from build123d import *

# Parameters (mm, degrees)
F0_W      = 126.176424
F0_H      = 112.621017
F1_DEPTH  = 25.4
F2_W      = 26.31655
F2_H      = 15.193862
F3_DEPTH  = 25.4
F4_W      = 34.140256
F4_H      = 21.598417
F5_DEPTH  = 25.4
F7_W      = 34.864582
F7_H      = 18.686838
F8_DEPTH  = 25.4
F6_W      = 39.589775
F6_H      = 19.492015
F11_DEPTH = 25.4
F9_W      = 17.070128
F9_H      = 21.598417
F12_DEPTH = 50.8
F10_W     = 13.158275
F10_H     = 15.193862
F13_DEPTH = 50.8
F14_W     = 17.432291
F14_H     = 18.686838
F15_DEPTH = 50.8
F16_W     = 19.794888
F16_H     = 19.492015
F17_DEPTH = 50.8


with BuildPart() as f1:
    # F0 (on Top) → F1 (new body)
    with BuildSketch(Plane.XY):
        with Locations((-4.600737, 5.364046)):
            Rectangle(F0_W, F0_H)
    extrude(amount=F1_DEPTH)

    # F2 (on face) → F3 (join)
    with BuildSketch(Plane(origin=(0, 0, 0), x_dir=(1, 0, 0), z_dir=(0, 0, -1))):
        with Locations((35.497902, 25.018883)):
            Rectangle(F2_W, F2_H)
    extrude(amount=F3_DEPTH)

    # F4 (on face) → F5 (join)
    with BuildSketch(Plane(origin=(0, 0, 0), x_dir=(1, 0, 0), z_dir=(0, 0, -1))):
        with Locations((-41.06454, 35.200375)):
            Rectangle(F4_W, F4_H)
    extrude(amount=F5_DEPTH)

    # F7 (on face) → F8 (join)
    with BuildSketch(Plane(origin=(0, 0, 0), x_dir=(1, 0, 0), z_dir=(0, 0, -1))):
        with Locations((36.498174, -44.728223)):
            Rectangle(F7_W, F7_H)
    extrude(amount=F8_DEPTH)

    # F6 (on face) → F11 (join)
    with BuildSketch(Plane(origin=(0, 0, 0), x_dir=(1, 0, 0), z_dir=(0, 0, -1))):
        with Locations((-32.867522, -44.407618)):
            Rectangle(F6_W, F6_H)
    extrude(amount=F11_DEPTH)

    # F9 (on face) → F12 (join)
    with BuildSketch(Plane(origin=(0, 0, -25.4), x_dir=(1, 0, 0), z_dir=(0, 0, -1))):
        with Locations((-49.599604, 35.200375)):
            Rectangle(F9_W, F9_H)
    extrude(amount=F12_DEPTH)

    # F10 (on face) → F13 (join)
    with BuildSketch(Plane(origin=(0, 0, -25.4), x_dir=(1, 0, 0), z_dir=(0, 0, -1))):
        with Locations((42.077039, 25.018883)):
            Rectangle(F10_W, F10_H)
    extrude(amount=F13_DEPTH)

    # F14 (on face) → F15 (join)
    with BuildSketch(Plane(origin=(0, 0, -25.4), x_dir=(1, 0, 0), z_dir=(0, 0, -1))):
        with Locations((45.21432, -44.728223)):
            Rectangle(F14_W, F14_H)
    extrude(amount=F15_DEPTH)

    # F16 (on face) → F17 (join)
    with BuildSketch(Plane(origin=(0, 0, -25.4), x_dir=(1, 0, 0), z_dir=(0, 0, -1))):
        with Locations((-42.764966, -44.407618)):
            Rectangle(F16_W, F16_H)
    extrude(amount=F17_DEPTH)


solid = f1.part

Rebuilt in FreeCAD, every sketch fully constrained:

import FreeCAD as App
import Part
import Sketcher
from FreeCAD import Vector
Q = App.Units.Quantity

doc = App.newDocument("Part")
body = doc.addObject("PartDesign::Body", "Body")

sketch1 = body.newObject("Sketcher::SketchObject", "Sketch")
sketch1.AttachmentSupport = (doc.getObject("XY_Plane"), [""])
sketch1.MapMode = "FlatFace"
sketch1.addGeometry(Part.LineSegment(Vector(-68, 62, 0), Vector(-68, -51, 0)), False)
sketch1.addGeometry(Part.LineSegment(Vector(-68, -51, 0), Vector(58, -51, 0)), False)
sketch1.addGeometry(Part.LineSegment(Vector(58, -51, 0), Vector(58, 62, 0)), False)
sketch1.addGeometry(Part.LineSegment(Vector(58, 62, 0), Vector(-68, 62, 0)), False)
sketch1.addConstraint(Sketcher.Constraint("Coincident", 0, 2, 1, 1))
sketch1.addConstraint(Sketcher.Constraint("Coincident", 1, 2, 2, 1))
sketch1.addConstraint(Sketcher.Constraint("Coincident", 2, 2, 3, 1))
sketch1.addConstraint(Sketcher.Constraint("Coincident", 3, 2, 0, 1))
sketch1.addConstraint(Sketcher.Constraint("Vertical", 0))
sketch1.addConstraint(Sketcher.Constraint("Horizontal", 1))
sketch1.addConstraint(Sketcher.Constraint("Vertical", 2))
sketch1.addConstraint(Sketcher.Constraint("Horizontal", 3))
sketch1.addConstraint(Sketcher.Constraint("DistanceX", 1, 1, 1, 2, Q("126.176424 mm")))
sketch1.addConstraint(Sketcher.Constraint("DistanceY", 0, 2, 0, 1, Q("112.621017 mm")))
sketch1.addConstraint(Sketcher.Constraint("DistanceX", 0, 2, -1, 1, Q("67.688949 mm")))
sketch1.addConstraint(Sketcher.Constraint("DistanceY", 0, 2, -1, 1, Q("50.946463 mm")))
pad1 = body.newObject("PartDesign::Pad", "Pad")
pad1.Profile = sketch1
pad1.Length = Q("1 in")

sketch2 = body.newObject("Sketcher::SketchObject", "Sketch001")
sketch2.AttachmentSupport = (doc.getObject("XY_Plane"), [""])
sketch2.MapMode = "FlatFace"
sketch2.addGeometry(Part.LineSegment(Vector(22, -33, 0), Vector(22, -17, 0)), False)
sketch2.addGeometry(Part.LineSegment(Vector(22, -17, 0), Vector(49, -17, 0)), False)
sketch2.addGeometry(Part.LineSegment(Vector(49, -17, 0), Vector(49, -33, 0)), False)
sketch2.addGeometry(Part.LineSegment(Vector(49, -33, 0), Vector(22, -33, 0)), False)
sketch2.addConstraint(Sketcher.Constraint("Coincident", 0, 2, 1, 1))
sketch2.addConstraint(Sketcher.Constraint("Coincident", 1, 2, 2, 1))
sketch2.addConstraint(Sketcher.Constraint("Coincident", 2, 2, 3, 1))
sketch2.addConstraint(Sketcher.Constraint("Coincident", 3, 2, 0, 1))
sketch2.addConstraint(Sketcher.Constraint("Vertical", 0))
sketch2.addConstraint(Sketcher.Constraint("Horizontal", 1))
sketch2.addConstraint(Sketcher.Constraint("Vertical", 2))
sketch2.addConstraint(Sketcher.Constraint("Horizontal", 3))
sketch2.addConstraint(Sketcher.Constraint("DistanceX", 1, 1, 1, 2, Q("26.31655 mm")))
sketch2.addConstraint(Sketcher.Constraint("DistanceY", 0, 1, 0, 2, Q("15.193862 mm")))
sketch2.addConstraint(Sketcher.Constraint("DistanceX", -1, 1, 0, 2, Q("22.339627 mm")))
sketch2.addConstraint(Sketcher.Constraint("DistanceY", 0, 2, -1, 1, Q("17.421952 mm")))
pad2 = body.newObject("PartDesign::Pad", "Pad001")
pad2.Profile = sketch2
pad2.Length = Q("1 in")
pad2.Reversed = True

sketch3 = body.newObject("Sketcher::SketchObject", "Sketch002")
sketch3.AttachmentSupport = (doc.getObject("XY_Plane"), [""])
sketch3.MapMode = "FlatFace"
sketch3.addGeometry(Part.LineSegment(Vector(-58, -46, 0), Vector(-58, -24, 0)), False)
sketch3.addGeometry(Part.LineSegment(Vector(-58, -24, 0), Vector(-24, -24, 0)), False)
sketch3.addGeometry(Part.LineSegment(Vector(-24, -24, 0), Vector(-24, -46, 0)), False)
sketch3.addGeometry(Part.LineSegment(Vector(-24, -46, 0), Vector(-58, -46, 0)), False)
sketch3.addConstraint(Sketcher.Constraint("Coincident", 0, 2, 1, 1))
sketch3.addConstraint(Sketcher.Constraint("Coincident", 1, 2, 2, 1))
sketch3.addConstraint(Sketcher.Constraint("Coincident", 2, 2, 3, 1))
sketch3.addConstraint(Sketcher.Constraint("Coincident", 3, 2, 0, 1))
sketch3.addConstraint(Sketcher.Constraint("Vertical", 0))
sketch3.addConstraint(Sketcher.Constraint("Horizontal", 1))
sketch3.addConstraint(Sketcher.Constraint("Vertical", 2))
sketch3.addConstraint(Sketcher.Constraint("Horizontal", 3))
sketch3.addConstraint(Sketcher.Constraint("DistanceX", 1, 1, 1, 2, Q("34.140256 mm")))
sketch3.addConstraint(Sketcher.Constraint("DistanceY", 0, 1, 0, 2, Q("21.598417 mm")))
sketch3.addConstraint(Sketcher.Constraint("DistanceX", 0, 2, -1, 1, Q("58.134668 mm")))
sketch3.addConstraint(Sketcher.Constraint("DistanceY", 0, 2, -1, 1, Q("24.401166 mm")))
pad3 = body.newObject("PartDesign::Pad", "Pad002")
pad3.Profile = sketch3
pad3.Length = Q("1 in")
pad3.Reversed = True

sketch4 = body.newObject("Sketcher::SketchObject", "Sketch003")
sketch4.AttachmentSupport = (doc.getObject("XY_Plane"), [""])
sketch4.MapMode = "FlatFace"
sketch4.addGeometry(Part.LineSegment(Vector(19, 35, 0), Vector(19, 54, 0)), False)
sketch4.addGeometry(Part.LineSegment(Vector(19, 54, 0), Vector(54, 54, 0)), False)
sketch4.addGeometry(Part.LineSegment(Vector(54, 54, 0), Vector(54, 35, 0)), False)
sketch4.addGeometry(Part.LineSegment(Vector(54, 35, 0), Vector(19, 35, 0)), False)
sketch4.addConstraint(Sketcher.Constraint("Coincident", 0, 2, 1, 1))
sketch4.addConstraint(Sketcher.Constraint("Coincident", 1, 2, 2, 1))
sketch4.addConstraint(Sketcher.Constraint("Coincident", 2, 2, 3, 1))
sketch4.addConstraint(Sketcher.Constraint("Coincident", 3, 2, 0, 1))
sketch4.addConstraint(Sketcher.Constraint("Vertical", 0))
sketch4.addConstraint(Sketcher.Constraint("Horizontal", 1))
sketch4.addConstraint(Sketcher.Constraint("Vertical", 2))
sketch4.addConstraint(Sketcher.Constraint("Horizontal", 3))
sketch4.addConstraint(Sketcher.Constraint("DistanceX", 1, 1, 1, 2, Q("34.864582 mm")))
sketch4.addConstraint(Sketcher.Constraint("DistanceY", 0, 1, 0, 2, Q("18.686838 mm")))
sketch4.addConstraint(Sketcher.Constraint("DistanceY", -1, 1, 0, 2, Q("54.071642 mm")))
sketch4.addConstraint(Sketcher.Constraint("DistanceX", -1, 1, 0, 2, Q("19.065883 mm")))
pad4 = body.newObject("PartDesign::Pad", "Pad003")
pad4.Profile = sketch4
pad4.Length = Q("1 in")
pad4.Reversed = True

sketch5 = body.newObject("Sketcher::SketchObject", "Sketch004")
sketch5.AttachmentSupport = (doc.getObject("XY_Plane"), [""])
sketch5.MapMode = "FlatFace"
sketch5.addGeometry(Part.LineSegment(Vector(-53, 35, 0), Vector(-53, 54, 0)), False)
sketch5.addGeometry(Part.LineSegment(Vector(-53, 54, 0), Vector(-13, 54, 0)), False)
sketch5.addGeometry(Part.LineSegment(Vector(-13, 54, 0), Vector(-13, 35, 0)), False)
sketch5.addGeometry(Part.LineSegment(Vector(-13, 35, 0), Vector(-53, 35, 0)), False)
sketch5.addConstraint(Sketcher.Constraint("Coincident", 0, 2, 1, 1))
sketch5.addConstraint(Sketcher.Constraint("Coincident", 1, 2, 2, 1))
sketch5.addConstraint(Sketcher.Constraint("Coincident", 2, 2, 3, 1))
sketch5.addConstraint(Sketcher.Constraint("Coincident", 3, 2, 0, 1))
sketch5.addConstraint(Sketcher.Constraint("Vertical", 0))
sketch5.addConstraint(Sketcher.Constraint("Horizontal", 1))
sketch5.addConstraint(Sketcher.Constraint("Vertical", 2))
sketch5.addConstraint(Sketcher.Constraint("Horizontal", 3))
sketch5.addConstraint(Sketcher.Constraint("DistanceX", 1, 1, 1, 2, Q("39.589775 mm")))
sketch5.addConstraint(Sketcher.Constraint("DistanceY", 0, 1, 0, 2, Q("19.492015 mm")))
sketch5.addConstraint(Sketcher.Constraint("DistanceX", 0, 2, -1, 1, Q("52.66241 mm")))
sketch5.addConstraint(Sketcher.Constraint("DistanceY", -1, 1, 2, 2, Q("34.661611 mm")))
pad5 = body.newObject("PartDesign::Pad", "Pad004")
pad5.Profile = sketch5
pad5.Length = Q("1 in")
pad5.Reversed = True

sketch6 = body.newObject("Sketcher::SketchObject", "Sketch005")
sketch6.AttachmentSupport = (doc.getObject("XY_Plane"), [""])
sketch6.MapMode = "FlatFace"
sketch6.AttachmentOffset = App.Placement(Vector(0, 0, -1 * 25.4), App.Rotation())
sketch6.addGeometry(Part.LineSegment(Vector(-58, -46, 0), Vector(-58, -24, 0)), False)
sketch6.addGeometry(Part.LineSegment(Vector(-58, -24, 0), Vector(-41, -24, 0)), False)
sketch6.addGeometry(Part.LineSegment(Vector(-41, -24, 0), Vector(-41, -46, 0)), False)
sketch6.addGeometry(Part.LineSegment(Vector(-41, -46, 0), Vector(-58, -46, 0)), False)
sketch6.addConstraint(Sketcher.Constraint("Coincident", 0, 2, 1, 1))
sketch6.addConstraint(Sketcher.Constraint("Coincident", 1, 2, 2, 1))
sketch6.addConstraint(Sketcher.Constraint("Coincident", 2, 2, 3, 1))
sketch6.addConstraint(Sketcher.Constraint("Coincident", 3, 2, 0, 1))
sketch6.addConstraint(Sketcher.Constraint("Vertical", 0))
sketch6.addConstraint(Sketcher.Constraint("Horizontal", 1))
sketch6.addConstraint(Sketcher.Constraint("Vertical", 2))
sketch6.addConstraint(Sketcher.Constraint("Horizontal", 3))
sketch6.addConstraint(Sketcher.Constraint("DistanceX", 1, 1, 1, 2, Q("17.070128 mm")))
sketch6.addConstraint(Sketcher.Constraint("DistanceY", 0, 1, 0, 2, Q("21.598417 mm")))
sketch6.addConstraint(Sketcher.Constraint("DistanceX", 1, 2, -1, 1, Q("41.06454 mm")))
sketch6.addConstraint(Sketcher.Constraint("DistanceY", 0, 2, -1, 1, Q("24.401166 mm")))
pad6 = body.newObject("PartDesign::Pad", "Pad005")
pad6.Profile = sketch6
pad6.Length = Q("2 in")
pad6.Reversed = True

sketch7 = body.newObject("Sketcher::SketchObject", "Sketch006")
sketch7.AttachmentSupport = (doc.getObject("XY_Plane"), [""])
sketch7.MapMode = "FlatFace"
sketch7.AttachmentOffset = App.Placement(Vector(0, 0, -1 * 25.4), App.Rotation())
sketch7.addGeometry(Part.LineSegment(Vector(35, -33, 0), Vector(35, -17, 0)), False)
sketch7.addGeometry(Part.LineSegment(Vector(35, -17, 0), Vector(49, -17, 0)), False)
sketch7.addGeometry(Part.LineSegment(Vector(49, -17, 0), Vector(49, -33, 0)), False)
sketch7.addGeometry(Part.LineSegment(Vector(49, -33, 0), Vector(35, -33, 0)), False)
sketch7.addConstraint(Sketcher.Constraint("Coincident", 0, 2, 1, 1))
sketch7.addConstraint(Sketcher.Constraint("Coincident", 1, 2, 2, 1))
sketch7.addConstraint(Sketcher.Constraint("Coincident", 2, 2, 3, 1))
sketch7.addConstraint(Sketcher.Constraint("Coincident", 3, 2, 0, 1))
sketch7.addConstraint(Sketcher.Constraint("Vertical", 0))
sketch7.addConstraint(Sketcher.Constraint("Horizontal", 1))
sketch7.addConstraint(Sketcher.Constraint("Vertical", 2))
sketch7.addConstraint(Sketcher.Constraint("Horizontal", 3))
sketch7.addConstraint(Sketcher.Constraint("DistanceY", 0, 1, 0, 2, Q("15.193862 mm")))
sketch7.addConstraint(Sketcher.Constraint("DistanceX", -1, 1, 0, 2, Q("35.497901 mm")))
sketch7.addConstraint(Sketcher.Constraint("DistanceX", 1, 1, 1, 2, Q("13.158275 mm")))
sketch7.addConstraint(Sketcher.Constraint("DistanceY", 0, 2, -1, 1, Q("17.421952 mm")))
pad7 = body.newObject("PartDesign::Pad", "Pad006")
pad7.Profile = sketch7
pad7.Length = Q("2 in")
pad7.Reversed = True

sketch8 = body.newObject("Sketcher::SketchObject", "Sketch007")
sketch8.AttachmentSupport = (doc.getObject("XY_Plane"), [""])
sketch8.MapMode = "FlatFace"
sketch8.AttachmentOffset = App.Placement(Vector(0, 0, -1 * 25.4), App.Rotation())
sketch8.addGeometry(Part.LineSegment(Vector(36, 35, 0), Vector(36, 54, 0)), False)
sketch8.addGeometry(Part.LineSegment(Vector(36, 54, 0), Vector(54, 54, 0)), False)
sketch8.addGeometry(Part.LineSegment(Vector(54, 54, 0), Vector(54, 35, 0)), False)
sketch8.addGeometry(Part.LineSegment(Vector(54, 35, 0), Vector(36, 35, 0)), False)
sketch8.addConstraint(Sketcher.Constraint("Coincident", 0, 2, 1, 1))
sketch8.addConstraint(Sketcher.Constraint("Coincident", 1, 2, 2, 1))
sketch8.addConstraint(Sketcher.Constraint("Coincident", 2, 2, 3, 1))
sketch8.addConstraint(Sketcher.Constraint("Coincident", 3, 2, 0, 1))
sketch8.addConstraint(Sketcher.Constraint("Vertical", 0))
sketch8.addConstraint(Sketcher.Constraint("Horizontal", 1))
sketch8.addConstraint(Sketcher.Constraint("Vertical", 2))
sketch8.addConstraint(Sketcher.Constraint("Horizontal", 3))
sketch8.addConstraint(Sketcher.Constraint("DistanceX", 1, 1, 1, 2, Q("17.432291 mm")))
sketch8.addConstraint(Sketcher.Constraint("DistanceY", 0, 1, 0, 2, Q("18.686838 mm")))
sketch8.addConstraint(Sketcher.Constraint("DistanceY", -1, 1, 0, 2, Q("54.071642 mm")))
sketch8.addConstraint(Sketcher.Constraint("DistanceX", -1, 1, 0, 2, Q("36.498174 mm")))
pad8 = body.newObject("PartDesign::Pad", "Pad007")
pad8.Profile = sketch8
pad8.Length = Q("2 in")
pad8.Reversed = True

sketch9 = body.newObject("Sketcher::SketchObject", "Sketch008")
sketch9.AttachmentSupport = (doc.getObject("XY_Plane"), [""])
sketch9.MapMode = "FlatFace"
sketch9.AttachmentOffset = App.Placement(Vector(0, 0, -1 * 25.4), App.Rotation())
sketch9.addGeometry(Part.LineSegment(Vector(-53, 35, 0), Vector(-53, 54, 0)), False)
sketch9.addGeometry(Part.LineSegment(Vector(-53, 54, 0), Vector(-33, 54, 0)), False)
sketch9.addGeometry(Part.LineSegment(Vector(-33, 54, 0), Vector(-33, 35, 0)), False)
sketch9.addGeometry(Part.LineSegment(Vector(-33, 35, 0), Vector(-53, 35, 0)), False)
sketch9.addConstraint(Sketcher.Constraint("Coincident", 0, 2, 1, 1))
sketch9.addConstraint(Sketcher.Constraint("Coincident", 1, 2, 2, 1))
sketch9.addConstraint(Sketcher.Constraint("Coincident", 2, 2, 3, 1))
sketch9.addConstraint(Sketcher.Constraint("Coincident", 3, 2, 0, 1))
sketch9.addConstraint(Sketcher.Constraint("Vertical", 0))
sketch9.addConstraint(Sketcher.Constraint("Horizontal", 1))
sketch9.addConstraint(Sketcher.Constraint("Vertical", 2))
sketch9.addConstraint(Sketcher.Constraint("Horizontal", 3))
sketch9.addConstraint(Sketcher.Constraint("DistanceX", 1, 1, 1, 2, Q("19.794888 mm")))
sketch9.addConstraint(Sketcher.Constraint("DistanceY", 0, 1, 0, 2, Q("19.492015 mm")))
sketch9.addConstraint(Sketcher.Constraint("DistanceX", 0, 2, -1, 1, Q("52.66241 mm")))
sketch9.addConstraint(Sketcher.Constraint("DistanceY", -1, 1, 2, 2, Q("34.661611 mm")))
pad9 = body.newObject("PartDesign::Pad", "Pad008")
pad9.Profile = sketch9
pad9.Length = Q("2 in")
pad9.Reversed = True

doc.recompute()
